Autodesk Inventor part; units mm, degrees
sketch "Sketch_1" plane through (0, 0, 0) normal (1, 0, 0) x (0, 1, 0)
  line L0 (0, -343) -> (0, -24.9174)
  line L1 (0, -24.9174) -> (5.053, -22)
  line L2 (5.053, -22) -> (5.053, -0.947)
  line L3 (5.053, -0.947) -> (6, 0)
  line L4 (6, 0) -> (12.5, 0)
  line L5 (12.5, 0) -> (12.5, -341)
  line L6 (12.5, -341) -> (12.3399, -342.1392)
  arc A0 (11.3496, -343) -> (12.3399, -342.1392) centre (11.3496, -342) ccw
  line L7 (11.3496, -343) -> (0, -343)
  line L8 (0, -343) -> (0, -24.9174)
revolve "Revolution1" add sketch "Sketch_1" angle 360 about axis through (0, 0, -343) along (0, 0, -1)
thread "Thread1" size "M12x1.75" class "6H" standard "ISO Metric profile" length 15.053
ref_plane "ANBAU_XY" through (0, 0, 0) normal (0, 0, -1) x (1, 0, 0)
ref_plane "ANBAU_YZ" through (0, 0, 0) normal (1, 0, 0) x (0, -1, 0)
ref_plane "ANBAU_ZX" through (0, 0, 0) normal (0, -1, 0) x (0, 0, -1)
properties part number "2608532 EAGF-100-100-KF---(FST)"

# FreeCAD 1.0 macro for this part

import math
import FreeCAD as App
import Part
import Sketcher
Q = App.Units.Quantity

doc = App.newDocument("Part")
params = doc.addObject("Spreadsheet::Sheet", "Params")
for row, (alias, value) in enumerate([
    ("sketch1_radius", "1 mm"),
    ("sketch1_height", "341 mm"),
    ("sketch1_width", "6.5 mm"),
    ("revolution_angle", "360 deg"),
], start=1):
    params.set(f"A{row}", alias)
    params.set(f"B{row}", "=" + value)
    params.setAlias(f"B{row}", alias)

body = doc.addObject("PartDesign::Body", "Body")

sketch1 = body.newObject("Sketcher::SketchObject", "Sketch")
sketch1.AttachmentSupport = (doc.getObject("YZ_Plane"), [""])
sketch1.MapMode = "FlatFace"
sketch1.addGeometry(Part.LineSegment(App.Vector(0, -24.9, 0), App.Vector(0, -343, 0)), False)
sketch1.addGeometry(Part.LineSegment(App.Vector(0, -343, 0), App.Vector(11.3, -343, 0)), False)
sketch1.addGeometry(Part.ArcOfCircle(Part.Circle(App.Vector(11.3, -342, 0), App.Vector(0, 0, 1), 1), math.radians(-90), math.radians(-8)), False)
sketch1.addGeometry(Part.LineSegment(App.Vector(12.3, -342.1, 0), App.Vector(12.5, -341, 0)), False)
sketch1.addGeometry(Part.LineSegment(App.Vector(12.5, -341, 0), App.Vector(12.5, 0, 0)), False)
sketch1.addGeometry(Part.LineSegment(App.Vector(12.5, 0, 0), App.Vector(6, 0, 0)), False)
sketch1.addGeometry(Part.LineSegment(App.Vector(6, 0, 0), App.Vector(5.1, -0.9, 0)), False)
sketch1.addGeometry(Part.LineSegment(App.Vector(5.1, -0.9, 0), App.Vector(5.1, -22, 0)), False)
sketch1.addGeometry(Part.LineSegment(App.Vector(5.1, -22, 0), App.Vector(0, -24.9, 0)), False)
sketch1.addConstraint(Sketcher.Constraint("Coincident", 0, 2, 1, 1))
sketch1.addConstraint(Sketcher.Constraint("Tangent", 1, 2, 2, 1))
sketch1.addConstraint(Sketcher.Constraint("Tangent", 2, 2, 3, 1))
sketch1.addConstraint(Sketcher.Constraint("Coincident", 3, 2, 4, 1))
sketch1.addConstraint(Sketcher.Constraint("Coincident", 4, 2, 5, 1))
sketch1.addConstraint(Sketcher.Constraint("Coincident", 5, 2, 6, 1))
sketch1.addConstraint(Sketcher.Constraint("Coincident", 6, 2, 7, 1))
sketch1.addConstraint(Sketcher.Constraint("Coincident", 7, 2, 8, 1))
sketch1.addConstraint(Sketcher.Constraint("Coincident", 8, 2, 0, 1))
sketch1.addConstraint(Sketcher.Constraint("Vertical", 0))
sketch1.addConstraint(Sketcher.Constraint("Horizontal", 1))
sketch1.addConstraint(Sketcher.Constraint("Vertical", 4))
sketch1.addConstraint(Sketcher.Constraint("Horizontal", 5))
sketch1.addConstraint(Sketcher.Constraint("Vertical", 7))
sketch1.addConstraint(Sketcher.Constraint("PointOnObject", 0, 2, -2))
sketch1.addConstraint(Sketcher.Constraint("PointOnObject", 4, 2, -1))
sketch1.addConstraint(Sketcher.Constraint("Radius", 2, Q("1 mm")))
sketch1.addConstraint(Sketcher.Constraint("DistanceY", 4, 1, 4, 2, Q("341 mm")))
sketch1.addConstraint(Sketcher.Constraint("Angle", 3, Q("82.0002 deg")))
sketch1.addConstraint(Sketcher.Constraint("Angle", 6, Q("-135 deg")))
sketch1.addConstraint(Sketcher.Constraint("Angle", 8, Q("-149.9996 deg")))
sketch1.addConstraint(Sketcher.Constraint("DistanceX", 5, 2, 5, 1, Q("6.5 mm")))
sketch1.addConstraint(Sketcher.Constraint("DistanceY", 2, 3, -1, 1, Q("342 mm")))
sketch1.addConstraint(Sketcher.Constraint("DistanceX", -1, 1, 5, 2, Q("6 mm")))
sketch1.addConstraint(Sketcher.Constraint("DistanceY", 7, 2, -1, 1, Q("22 mm")))
sketch1.addConstraint(Sketcher.Constraint("DistanceY", 7, 2, 7, 1, Q("21.053 mm")))
sketch1.setExpression("Constraints[16]", "Params.sketch1_radius")
sketch1.setExpression("Constraints[17]", "Params.sketch1_height")
sketch1.setExpression("Constraints[21]", "Params.sketch1_width")
revolution = body.newObject("PartDesign::Revolution", "Revolution")
revolution.Profile = sketch1
revolution.ReferenceAxis = (sketch1, ["V_Axis"])
revolution.setExpression("Angle", "Params.revolution_angle")

doc.recompute()
